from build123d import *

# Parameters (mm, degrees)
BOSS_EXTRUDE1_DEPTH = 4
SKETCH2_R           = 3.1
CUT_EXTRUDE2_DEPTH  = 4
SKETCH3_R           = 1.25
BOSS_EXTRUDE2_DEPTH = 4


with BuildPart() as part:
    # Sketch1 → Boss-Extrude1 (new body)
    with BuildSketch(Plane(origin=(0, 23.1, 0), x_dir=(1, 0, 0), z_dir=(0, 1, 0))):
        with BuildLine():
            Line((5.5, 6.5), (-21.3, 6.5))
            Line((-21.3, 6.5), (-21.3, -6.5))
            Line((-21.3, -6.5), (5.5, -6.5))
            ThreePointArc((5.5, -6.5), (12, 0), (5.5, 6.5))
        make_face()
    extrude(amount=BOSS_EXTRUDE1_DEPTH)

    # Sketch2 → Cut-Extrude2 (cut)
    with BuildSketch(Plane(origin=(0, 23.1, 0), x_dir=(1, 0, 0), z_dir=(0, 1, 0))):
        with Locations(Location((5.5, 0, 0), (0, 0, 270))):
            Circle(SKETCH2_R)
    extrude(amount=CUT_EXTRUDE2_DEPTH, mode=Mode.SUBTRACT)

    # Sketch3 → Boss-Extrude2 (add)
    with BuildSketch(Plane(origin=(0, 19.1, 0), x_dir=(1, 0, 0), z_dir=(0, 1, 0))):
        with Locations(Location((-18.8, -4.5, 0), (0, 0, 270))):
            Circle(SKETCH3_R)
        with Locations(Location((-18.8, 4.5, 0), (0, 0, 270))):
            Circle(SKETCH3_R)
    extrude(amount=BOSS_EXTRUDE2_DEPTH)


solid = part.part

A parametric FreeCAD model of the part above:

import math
import FreeCAD as App
import Part
import Sketcher

V = App.Vector
Q = App.Units.Quantity

doc = App.newDocument("Part")
body = doc.addObject("PartDesign::Body", "Body")

sketch1 = body.newObject("Sketcher::SketchObject", "Sketch")
sketch1.AttachmentSupport = (doc.getObject("XZ_Plane"), [""])
sketch1.MapMode = "FlatFace"
sketch1.AttachmentOffset = App.Placement(V(0, 0, -23.1), App.Rotation())
sketch1.addGeometry([
    Part.LineSegment(V(6, -6, 0), V(-21, -6, 0)),
    Part.LineSegment(V(-21, -6, 0), V(-21, 6, 0)),
    Part.LineSegment(V(-21, 6, 0), V(6, 6, 0)),
    Part.ArcOfCircle(Part.Circle(V(6, 0, 0), V(0, 0, 1), 6), math.radians(-90), math.radians(90)),
], False)
sketch1.addConstraint([
    Sketcher.Constraint("Coincident", 0, 2, 1, 1),
    Sketcher.Constraint("Coincident", 1, 2, 2, 1),
    Sketcher.Constraint("Tangent", 2, 2, 3, 2),
    Sketcher.Constraint("Tangent", 3, 1, 0, 1),
    Sketcher.Constraint("Horizontal", 0),
    Sketcher.Constraint("Vertical", 1),
    Sketcher.Constraint("Horizontal", 2),
    Sketcher.Constraint("PointOnObject", 3, 3, -1),
    Sketcher.Constraint("Radius", 3, Q("6.5 mm")),
    Sketcher.Constraint("DistanceX", 0, 2, 0, 1, Q("26.8 mm")),
    Sketcher.Constraint("DistanceX", -1, 1, 3, 3, Q("5.5 mm")),
])
pad1 = body.newObject("PartDesign::Pad", "Pad")
pad1.Profile = sketch1
pad1.Length = 4
pad1.Reversed = True

sketch2 = body.newObject("Sketcher::SketchObject", "Sketch001")
sketch2.AttachmentSupport = (doc.getObject("XZ_Plane"), [""])
sketch2.MapMode = "FlatFace"
sketch2.AttachmentOffset = App.Placement(V(0, 0, -23.1), App.Rotation())
sketch2.addGeometry(Part.Circle(V(5.5, 0, 0), V(0, 0, 1), 3.1), False)
sketch2.addConstraint([
    Sketcher.Constraint("PointOnObject", 0, 3, -1),
    Sketcher.Constraint("Diameter", 0, Q("6.2 mm")),
    Sketcher.Constraint("DistanceX", -1, 1, 0, 3, Q("5.5 mm")),
])
pocket1 = body.newObject("PartDesign::Pocket", "Pocket")
pocket1.Profile = sketch2
pocket1.Length = 4

sketch3 = body.newObject("Sketcher::SketchObject", "Sketch002")
sketch3.AttachmentSupport = (doc.getObject("XZ_Plane"), [""])
sketch3.MapMode = "FlatFace"
sketch3.AttachmentOffset = App.Placement(V(0, 0, -19.1), App.Rotation())
sketch3.addGeometry([
    Part.Circle(V(-18.8, 4.5, 0), V(0, 0, 1), 1.2),
    Part.Circle(V(-18.8, -4.5, 0), V(0, 0, 1), 1.2),
], False)
sketch3.addConstraint([
    Sketcher.Constraint("Equal", 0, 1),
    Sketcher.Constraint("Symmetric", 0, 3, 1, 3, -1),
    Sketcher.Constraint("Diameter", 0, Q("2.5 mm")),
    Sketcher.Constraint("DistanceY", 1, 3, 0, 3, Q("9 mm")),
    Sketcher.Constraint("DistanceX", 0, 3, -1, 1, Q("18.8 mm")),
])
pad2 = body.newObject("PartDesign::Pad", "Pad001")
pad2.Profile = sketch3
pad2.Length = 4
pad2.Reversed = True

doc.recompute()
